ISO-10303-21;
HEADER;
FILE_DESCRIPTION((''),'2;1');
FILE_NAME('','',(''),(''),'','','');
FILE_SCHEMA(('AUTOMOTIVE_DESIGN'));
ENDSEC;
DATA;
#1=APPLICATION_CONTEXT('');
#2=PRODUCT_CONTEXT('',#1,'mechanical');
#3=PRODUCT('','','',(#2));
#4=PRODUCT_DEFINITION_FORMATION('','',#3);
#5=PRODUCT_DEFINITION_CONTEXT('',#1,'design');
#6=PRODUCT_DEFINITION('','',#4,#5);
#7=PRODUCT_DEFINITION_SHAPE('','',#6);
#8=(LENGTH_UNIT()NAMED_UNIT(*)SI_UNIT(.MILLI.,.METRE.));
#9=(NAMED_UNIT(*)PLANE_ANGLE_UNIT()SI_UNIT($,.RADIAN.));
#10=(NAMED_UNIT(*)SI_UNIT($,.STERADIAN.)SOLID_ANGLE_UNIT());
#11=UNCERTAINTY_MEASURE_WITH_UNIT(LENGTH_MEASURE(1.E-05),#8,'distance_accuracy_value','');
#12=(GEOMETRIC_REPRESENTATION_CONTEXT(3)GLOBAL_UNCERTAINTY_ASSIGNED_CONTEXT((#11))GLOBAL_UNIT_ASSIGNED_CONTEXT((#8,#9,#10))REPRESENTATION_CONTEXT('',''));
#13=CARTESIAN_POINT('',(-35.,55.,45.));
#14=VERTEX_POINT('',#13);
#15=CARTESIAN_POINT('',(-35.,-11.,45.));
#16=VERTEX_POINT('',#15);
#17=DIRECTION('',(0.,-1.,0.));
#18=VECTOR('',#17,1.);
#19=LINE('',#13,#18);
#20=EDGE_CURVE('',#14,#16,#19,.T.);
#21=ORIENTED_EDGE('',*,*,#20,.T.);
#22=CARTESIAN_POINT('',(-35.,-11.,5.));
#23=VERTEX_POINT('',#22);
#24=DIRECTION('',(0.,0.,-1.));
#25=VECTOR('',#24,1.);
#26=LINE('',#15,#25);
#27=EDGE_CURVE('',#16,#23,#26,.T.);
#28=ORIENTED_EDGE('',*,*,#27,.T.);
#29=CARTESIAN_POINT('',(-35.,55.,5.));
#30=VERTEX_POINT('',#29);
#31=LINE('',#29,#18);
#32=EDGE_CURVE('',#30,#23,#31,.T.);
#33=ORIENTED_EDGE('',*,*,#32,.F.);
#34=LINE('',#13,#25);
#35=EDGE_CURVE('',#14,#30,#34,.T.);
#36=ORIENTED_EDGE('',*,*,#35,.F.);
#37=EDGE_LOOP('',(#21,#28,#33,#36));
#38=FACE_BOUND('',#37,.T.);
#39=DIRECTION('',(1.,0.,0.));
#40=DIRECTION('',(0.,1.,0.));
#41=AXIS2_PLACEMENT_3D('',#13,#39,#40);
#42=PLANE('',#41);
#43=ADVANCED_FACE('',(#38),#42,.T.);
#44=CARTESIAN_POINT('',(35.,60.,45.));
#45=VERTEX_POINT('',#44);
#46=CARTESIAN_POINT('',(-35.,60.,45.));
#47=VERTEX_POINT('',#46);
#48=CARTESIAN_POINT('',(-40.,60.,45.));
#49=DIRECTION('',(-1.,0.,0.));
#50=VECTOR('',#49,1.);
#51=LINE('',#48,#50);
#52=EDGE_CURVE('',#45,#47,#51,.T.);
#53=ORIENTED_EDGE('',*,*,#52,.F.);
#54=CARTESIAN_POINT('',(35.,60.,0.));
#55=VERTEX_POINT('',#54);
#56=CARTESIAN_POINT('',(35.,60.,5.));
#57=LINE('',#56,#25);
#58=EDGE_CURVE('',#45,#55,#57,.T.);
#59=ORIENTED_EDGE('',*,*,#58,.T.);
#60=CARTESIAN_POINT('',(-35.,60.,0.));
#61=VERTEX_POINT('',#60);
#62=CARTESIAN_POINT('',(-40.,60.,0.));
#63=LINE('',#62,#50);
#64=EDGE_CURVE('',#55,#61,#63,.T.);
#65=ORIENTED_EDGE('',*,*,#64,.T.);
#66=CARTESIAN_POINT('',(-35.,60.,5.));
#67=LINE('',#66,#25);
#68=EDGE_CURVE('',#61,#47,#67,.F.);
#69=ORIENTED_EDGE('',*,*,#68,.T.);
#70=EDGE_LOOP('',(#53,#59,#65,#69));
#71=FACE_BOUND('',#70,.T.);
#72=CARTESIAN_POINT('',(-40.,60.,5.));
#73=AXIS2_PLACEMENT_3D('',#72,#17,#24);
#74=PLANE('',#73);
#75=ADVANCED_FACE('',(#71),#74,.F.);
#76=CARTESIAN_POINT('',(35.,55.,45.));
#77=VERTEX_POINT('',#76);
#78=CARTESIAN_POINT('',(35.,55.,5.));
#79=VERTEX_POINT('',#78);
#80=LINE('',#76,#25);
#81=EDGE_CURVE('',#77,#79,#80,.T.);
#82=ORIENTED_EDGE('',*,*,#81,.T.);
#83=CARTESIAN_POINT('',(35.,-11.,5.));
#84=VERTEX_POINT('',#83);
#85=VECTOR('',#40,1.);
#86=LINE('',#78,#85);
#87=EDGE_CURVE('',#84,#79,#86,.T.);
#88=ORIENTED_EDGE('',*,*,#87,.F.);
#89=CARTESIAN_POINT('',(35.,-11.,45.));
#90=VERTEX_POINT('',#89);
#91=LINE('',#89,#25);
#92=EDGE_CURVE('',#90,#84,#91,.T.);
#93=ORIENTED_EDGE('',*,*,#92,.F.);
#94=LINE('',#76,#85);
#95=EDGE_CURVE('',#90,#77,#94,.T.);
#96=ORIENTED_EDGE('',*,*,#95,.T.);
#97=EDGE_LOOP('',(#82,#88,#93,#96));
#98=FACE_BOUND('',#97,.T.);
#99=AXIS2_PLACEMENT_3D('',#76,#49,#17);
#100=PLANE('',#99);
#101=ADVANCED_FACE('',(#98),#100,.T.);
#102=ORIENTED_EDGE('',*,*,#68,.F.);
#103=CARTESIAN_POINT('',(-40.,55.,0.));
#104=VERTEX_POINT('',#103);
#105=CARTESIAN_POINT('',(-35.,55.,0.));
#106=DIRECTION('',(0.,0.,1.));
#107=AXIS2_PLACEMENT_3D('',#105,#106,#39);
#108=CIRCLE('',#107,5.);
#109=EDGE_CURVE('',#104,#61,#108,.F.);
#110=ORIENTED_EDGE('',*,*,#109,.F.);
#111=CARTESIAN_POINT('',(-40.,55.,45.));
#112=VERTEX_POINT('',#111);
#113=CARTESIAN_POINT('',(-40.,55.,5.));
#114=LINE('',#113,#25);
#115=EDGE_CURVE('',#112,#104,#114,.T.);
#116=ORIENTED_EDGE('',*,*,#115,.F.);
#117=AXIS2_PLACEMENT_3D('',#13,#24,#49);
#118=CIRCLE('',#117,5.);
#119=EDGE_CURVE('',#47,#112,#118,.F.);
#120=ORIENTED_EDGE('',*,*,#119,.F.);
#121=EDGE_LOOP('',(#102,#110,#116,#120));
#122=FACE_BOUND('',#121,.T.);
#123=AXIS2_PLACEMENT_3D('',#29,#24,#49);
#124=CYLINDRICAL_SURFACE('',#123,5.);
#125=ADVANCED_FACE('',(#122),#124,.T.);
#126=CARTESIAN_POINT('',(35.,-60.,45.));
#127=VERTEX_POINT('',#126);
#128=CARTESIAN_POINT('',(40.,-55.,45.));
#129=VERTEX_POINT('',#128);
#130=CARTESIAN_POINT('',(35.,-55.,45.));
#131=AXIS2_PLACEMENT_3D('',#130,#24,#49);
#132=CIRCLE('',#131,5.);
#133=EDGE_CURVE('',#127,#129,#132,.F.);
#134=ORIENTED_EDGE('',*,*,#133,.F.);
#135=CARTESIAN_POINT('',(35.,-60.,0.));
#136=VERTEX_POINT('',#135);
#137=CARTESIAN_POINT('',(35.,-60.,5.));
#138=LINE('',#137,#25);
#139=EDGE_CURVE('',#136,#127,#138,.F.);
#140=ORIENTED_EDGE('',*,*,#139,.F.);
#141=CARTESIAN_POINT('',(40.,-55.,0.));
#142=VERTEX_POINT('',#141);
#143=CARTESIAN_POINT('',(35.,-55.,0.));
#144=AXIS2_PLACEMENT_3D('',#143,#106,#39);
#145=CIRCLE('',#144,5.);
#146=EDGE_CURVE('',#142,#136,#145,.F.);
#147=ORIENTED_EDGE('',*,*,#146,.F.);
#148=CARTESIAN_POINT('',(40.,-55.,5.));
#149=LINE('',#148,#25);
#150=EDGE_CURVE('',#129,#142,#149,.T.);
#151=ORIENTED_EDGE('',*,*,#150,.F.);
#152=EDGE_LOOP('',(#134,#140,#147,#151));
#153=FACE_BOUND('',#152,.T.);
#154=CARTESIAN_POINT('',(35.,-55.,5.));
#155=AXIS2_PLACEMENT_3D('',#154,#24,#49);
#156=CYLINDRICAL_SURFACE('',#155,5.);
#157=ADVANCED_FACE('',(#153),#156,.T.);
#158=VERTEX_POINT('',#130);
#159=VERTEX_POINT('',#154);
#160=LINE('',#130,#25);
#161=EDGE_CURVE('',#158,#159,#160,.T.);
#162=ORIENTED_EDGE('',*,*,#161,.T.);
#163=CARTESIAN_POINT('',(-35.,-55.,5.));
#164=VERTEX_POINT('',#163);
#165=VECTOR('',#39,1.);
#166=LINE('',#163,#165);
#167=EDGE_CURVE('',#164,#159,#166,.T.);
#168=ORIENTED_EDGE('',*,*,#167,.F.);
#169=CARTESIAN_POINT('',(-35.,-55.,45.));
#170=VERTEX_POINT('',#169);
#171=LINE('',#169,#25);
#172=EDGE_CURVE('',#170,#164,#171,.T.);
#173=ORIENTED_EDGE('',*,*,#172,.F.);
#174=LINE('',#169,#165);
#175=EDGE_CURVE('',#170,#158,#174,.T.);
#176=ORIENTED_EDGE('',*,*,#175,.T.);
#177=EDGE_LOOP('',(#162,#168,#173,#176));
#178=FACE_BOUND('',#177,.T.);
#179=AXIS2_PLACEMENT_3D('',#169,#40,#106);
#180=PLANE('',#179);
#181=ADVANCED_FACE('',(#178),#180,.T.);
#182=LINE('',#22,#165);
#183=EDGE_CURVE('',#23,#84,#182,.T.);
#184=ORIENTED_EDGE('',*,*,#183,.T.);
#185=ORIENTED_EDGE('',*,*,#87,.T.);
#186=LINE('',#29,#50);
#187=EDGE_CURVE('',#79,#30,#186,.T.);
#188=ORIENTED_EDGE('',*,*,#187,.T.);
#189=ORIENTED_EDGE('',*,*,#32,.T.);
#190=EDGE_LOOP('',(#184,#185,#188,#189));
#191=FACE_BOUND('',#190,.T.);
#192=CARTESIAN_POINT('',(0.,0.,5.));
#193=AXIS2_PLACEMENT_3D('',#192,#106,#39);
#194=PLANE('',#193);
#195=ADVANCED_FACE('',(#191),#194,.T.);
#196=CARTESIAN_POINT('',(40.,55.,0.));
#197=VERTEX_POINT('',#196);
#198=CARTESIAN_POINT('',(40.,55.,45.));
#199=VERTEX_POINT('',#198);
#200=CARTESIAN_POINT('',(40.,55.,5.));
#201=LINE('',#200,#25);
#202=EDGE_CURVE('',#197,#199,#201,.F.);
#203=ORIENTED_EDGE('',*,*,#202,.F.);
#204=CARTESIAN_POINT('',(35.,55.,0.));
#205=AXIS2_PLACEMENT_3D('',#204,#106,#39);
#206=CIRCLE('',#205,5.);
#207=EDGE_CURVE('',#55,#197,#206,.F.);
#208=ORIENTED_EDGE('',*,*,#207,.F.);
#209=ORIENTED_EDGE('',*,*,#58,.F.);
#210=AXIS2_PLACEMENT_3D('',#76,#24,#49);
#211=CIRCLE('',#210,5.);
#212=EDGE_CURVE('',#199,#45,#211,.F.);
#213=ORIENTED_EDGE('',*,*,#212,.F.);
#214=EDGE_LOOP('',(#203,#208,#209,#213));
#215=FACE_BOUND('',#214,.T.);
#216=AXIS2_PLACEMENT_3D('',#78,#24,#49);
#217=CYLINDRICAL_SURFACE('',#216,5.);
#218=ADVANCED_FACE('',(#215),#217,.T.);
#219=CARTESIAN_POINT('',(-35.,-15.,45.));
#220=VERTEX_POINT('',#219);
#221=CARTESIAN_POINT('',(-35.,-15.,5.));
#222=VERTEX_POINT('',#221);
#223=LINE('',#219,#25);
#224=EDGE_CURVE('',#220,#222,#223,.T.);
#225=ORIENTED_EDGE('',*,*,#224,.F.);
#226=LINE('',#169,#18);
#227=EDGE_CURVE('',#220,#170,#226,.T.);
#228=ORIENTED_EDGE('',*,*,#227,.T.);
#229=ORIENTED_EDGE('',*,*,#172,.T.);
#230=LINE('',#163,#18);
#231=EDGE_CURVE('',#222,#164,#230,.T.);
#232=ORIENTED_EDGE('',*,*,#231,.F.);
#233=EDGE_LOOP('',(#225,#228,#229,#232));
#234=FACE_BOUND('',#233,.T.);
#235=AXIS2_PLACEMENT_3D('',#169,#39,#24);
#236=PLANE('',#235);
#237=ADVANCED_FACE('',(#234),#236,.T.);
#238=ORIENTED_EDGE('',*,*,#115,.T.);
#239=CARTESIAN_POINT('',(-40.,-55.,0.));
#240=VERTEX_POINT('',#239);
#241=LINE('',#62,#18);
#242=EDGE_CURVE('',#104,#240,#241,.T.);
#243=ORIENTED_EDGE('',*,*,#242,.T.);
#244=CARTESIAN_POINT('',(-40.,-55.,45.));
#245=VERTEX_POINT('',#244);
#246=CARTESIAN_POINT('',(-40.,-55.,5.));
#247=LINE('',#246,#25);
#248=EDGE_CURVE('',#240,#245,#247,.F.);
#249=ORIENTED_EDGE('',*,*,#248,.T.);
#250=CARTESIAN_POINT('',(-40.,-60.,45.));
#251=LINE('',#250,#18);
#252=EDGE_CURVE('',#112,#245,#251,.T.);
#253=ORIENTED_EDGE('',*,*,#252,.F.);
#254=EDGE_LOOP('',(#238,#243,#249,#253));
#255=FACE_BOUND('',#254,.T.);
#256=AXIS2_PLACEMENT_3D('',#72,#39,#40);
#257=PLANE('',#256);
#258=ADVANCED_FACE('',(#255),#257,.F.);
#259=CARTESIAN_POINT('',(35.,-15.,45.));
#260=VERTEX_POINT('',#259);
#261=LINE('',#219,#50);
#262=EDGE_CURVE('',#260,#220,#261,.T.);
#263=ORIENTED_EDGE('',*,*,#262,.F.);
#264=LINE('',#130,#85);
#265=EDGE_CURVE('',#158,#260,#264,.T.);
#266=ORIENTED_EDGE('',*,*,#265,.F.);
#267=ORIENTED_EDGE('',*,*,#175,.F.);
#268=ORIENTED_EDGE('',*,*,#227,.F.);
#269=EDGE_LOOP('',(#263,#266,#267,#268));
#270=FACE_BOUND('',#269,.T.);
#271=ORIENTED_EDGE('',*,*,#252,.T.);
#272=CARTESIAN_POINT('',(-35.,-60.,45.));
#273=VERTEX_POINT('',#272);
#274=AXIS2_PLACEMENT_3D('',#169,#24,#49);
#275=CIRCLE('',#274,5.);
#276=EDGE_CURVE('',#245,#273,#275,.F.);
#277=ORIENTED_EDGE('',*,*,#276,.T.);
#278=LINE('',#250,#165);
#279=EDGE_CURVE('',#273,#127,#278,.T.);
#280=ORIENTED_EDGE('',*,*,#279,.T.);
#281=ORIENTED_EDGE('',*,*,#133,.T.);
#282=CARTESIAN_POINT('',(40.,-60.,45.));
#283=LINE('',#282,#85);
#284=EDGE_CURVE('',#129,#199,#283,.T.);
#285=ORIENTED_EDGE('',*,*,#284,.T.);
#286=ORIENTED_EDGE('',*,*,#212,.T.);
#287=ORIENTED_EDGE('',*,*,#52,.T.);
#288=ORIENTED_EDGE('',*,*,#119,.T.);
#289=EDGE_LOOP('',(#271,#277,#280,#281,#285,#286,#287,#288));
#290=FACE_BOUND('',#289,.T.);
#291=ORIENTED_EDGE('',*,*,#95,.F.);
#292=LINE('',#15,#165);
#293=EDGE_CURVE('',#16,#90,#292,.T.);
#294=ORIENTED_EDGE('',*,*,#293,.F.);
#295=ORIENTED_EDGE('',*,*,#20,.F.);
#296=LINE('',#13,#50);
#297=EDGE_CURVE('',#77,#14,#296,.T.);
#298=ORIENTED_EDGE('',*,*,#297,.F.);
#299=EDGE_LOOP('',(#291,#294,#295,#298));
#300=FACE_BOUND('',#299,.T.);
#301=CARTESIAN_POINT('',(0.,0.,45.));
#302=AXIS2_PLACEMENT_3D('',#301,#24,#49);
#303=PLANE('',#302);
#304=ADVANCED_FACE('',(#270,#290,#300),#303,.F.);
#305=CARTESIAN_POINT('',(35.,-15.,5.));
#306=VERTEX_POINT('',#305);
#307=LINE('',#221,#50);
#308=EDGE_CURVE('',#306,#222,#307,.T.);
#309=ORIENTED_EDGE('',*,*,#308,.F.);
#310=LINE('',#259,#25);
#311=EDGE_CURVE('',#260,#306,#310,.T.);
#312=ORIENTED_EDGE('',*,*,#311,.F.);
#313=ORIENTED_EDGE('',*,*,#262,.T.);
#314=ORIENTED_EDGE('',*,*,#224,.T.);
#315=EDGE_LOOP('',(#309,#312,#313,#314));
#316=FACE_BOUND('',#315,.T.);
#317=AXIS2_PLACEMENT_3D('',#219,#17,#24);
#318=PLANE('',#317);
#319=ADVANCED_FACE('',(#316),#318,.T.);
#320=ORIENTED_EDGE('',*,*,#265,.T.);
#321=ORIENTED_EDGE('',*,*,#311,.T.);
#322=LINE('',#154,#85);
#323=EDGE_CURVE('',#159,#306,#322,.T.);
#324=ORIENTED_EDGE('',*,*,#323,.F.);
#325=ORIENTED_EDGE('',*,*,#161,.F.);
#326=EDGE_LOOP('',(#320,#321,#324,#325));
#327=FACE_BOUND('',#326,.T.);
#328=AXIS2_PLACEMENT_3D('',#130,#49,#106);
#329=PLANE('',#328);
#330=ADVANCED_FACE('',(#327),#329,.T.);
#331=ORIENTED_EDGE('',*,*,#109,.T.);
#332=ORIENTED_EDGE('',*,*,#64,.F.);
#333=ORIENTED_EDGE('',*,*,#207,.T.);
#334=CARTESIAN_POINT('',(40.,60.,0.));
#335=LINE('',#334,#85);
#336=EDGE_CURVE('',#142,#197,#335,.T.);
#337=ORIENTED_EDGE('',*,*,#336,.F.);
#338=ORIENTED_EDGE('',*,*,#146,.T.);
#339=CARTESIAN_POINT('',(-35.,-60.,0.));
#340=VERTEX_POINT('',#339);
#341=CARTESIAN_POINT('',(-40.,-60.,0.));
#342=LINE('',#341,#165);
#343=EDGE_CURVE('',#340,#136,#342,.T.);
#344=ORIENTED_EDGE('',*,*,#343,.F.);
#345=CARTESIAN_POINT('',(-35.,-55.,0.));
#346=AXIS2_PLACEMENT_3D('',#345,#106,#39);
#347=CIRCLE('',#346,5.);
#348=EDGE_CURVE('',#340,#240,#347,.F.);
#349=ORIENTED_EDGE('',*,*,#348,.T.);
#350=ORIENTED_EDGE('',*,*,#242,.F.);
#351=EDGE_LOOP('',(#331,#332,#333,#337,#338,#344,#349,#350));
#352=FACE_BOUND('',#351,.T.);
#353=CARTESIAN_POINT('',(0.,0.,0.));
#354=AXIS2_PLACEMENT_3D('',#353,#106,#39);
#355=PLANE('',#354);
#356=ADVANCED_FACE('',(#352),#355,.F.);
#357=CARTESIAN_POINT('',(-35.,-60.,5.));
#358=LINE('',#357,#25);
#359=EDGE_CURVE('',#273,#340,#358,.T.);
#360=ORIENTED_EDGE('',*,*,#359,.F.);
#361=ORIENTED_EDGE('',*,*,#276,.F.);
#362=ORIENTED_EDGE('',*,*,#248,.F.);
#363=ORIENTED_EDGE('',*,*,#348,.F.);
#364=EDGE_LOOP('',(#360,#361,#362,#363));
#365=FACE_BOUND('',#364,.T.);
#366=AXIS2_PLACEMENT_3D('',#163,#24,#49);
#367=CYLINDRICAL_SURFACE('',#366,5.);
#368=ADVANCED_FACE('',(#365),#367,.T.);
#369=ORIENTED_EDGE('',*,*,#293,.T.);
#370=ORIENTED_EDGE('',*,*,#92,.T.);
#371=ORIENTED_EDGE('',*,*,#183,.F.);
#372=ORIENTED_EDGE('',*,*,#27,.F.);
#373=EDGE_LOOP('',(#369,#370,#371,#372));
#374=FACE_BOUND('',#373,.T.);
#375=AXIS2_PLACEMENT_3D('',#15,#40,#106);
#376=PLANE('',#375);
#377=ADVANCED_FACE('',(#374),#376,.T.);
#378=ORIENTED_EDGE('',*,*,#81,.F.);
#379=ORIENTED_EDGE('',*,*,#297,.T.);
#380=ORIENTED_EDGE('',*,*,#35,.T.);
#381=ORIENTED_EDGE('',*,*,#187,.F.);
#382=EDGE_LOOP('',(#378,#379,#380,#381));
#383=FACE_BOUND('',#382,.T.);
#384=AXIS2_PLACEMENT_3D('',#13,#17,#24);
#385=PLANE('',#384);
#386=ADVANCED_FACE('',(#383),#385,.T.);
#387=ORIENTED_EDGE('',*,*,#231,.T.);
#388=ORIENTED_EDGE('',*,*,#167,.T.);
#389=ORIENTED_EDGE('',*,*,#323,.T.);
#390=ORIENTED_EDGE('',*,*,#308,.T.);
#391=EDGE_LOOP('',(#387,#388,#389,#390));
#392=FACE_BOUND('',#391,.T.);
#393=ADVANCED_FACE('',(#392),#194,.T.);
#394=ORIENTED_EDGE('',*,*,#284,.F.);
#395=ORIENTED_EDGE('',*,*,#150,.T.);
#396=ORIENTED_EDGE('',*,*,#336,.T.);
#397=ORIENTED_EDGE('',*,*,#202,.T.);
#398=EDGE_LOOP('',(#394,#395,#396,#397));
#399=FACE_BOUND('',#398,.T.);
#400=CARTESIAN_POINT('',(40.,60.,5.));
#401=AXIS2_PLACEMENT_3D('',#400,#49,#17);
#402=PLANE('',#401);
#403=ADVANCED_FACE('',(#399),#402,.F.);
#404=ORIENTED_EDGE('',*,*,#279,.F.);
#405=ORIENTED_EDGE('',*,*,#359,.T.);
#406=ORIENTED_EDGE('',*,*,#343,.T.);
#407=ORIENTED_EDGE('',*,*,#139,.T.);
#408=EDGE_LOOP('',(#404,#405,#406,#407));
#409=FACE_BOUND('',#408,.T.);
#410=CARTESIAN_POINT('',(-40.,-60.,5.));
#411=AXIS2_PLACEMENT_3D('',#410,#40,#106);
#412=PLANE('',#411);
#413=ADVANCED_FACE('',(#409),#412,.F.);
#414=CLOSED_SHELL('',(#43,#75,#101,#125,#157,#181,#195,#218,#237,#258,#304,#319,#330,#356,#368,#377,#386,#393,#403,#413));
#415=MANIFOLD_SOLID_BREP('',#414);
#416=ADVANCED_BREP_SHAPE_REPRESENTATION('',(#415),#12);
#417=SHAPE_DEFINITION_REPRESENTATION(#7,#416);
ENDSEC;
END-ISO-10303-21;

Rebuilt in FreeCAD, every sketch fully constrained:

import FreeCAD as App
import Part
import Sketcher
Q = App.Units.Quantity


def edges_at(feature, points):
    """Names of the edges that pass closest to the given points."""
    edges = feature.Shape.Edges
    near = lambda p: min(range(len(edges)), key=lambda i: edges[i].distToShape(Part.Vertex(*p))[0])
    return sorted({f"Edge{near(p) + 1}" for p in points})

doc = App.newDocument("Part")
params = doc.addObject("Spreadsheet::Sheet", "Params")
for row, (alias, value) in enumerate([
    ("sketch1_width", "80 mm"),
    ("sketch1_height", "120 mm"),
    ("pad1_length", "5 mm"),
    ("sketch2_width", "80 mm"),
    ("sketch2_width2", "70 mm"),
    ("sketch2_height", "120 mm"),
    ("sketch2_height2", "40 mm"),
    ("sketch2_height3", "66 mm"),
    ("pad2_length", "40 mm"),
    ("fillet_radius", "5 mm"),
], start=1):
    params.set(f"A{row}", alias)
    params.set(f"B{row}", "=" + value)
    params.setAlias(f"B{row}", alias)

body = doc.addObject("PartDesign::Body", "Body")

# Sketch on XY plane
sketch1 = body.newObject("Sketcher::SketchObject", "Sketch")
sketch1.AttachmentSupport = (doc.getObject("XY_Plane"), [""])
sketch1.MapMode = "FlatFace"
sketch1.addGeometry(Part.LineSegment(App.Vector(-40, 60, 0), App.Vector(-40, -60, 0)), False)
sketch1.addGeometry(Part.LineSegment(App.Vector(-40, -60, 0), App.Vector(40, -60, 0)), False)
sketch1.addGeometry(Part.LineSegment(App.Vector(40, -60, 0), App.Vector(40, 60, 0)), False)
sketch1.addGeometry(Part.LineSegment(App.Vector(40, 60, 0), App.Vector(-40, 60, 0)), False)
sketch1.addConstraint(Sketcher.Constraint("Coincident", 0, 2, 1, 1))
sketch1.addConstraint(Sketcher.Constraint("Coincident", 1, 2, 2, 1))
sketch1.addConstraint(Sketcher.Constraint("Coincident", 2, 2, 3, 1))
sketch1.addConstraint(Sketcher.Constraint("Coincident", 3, 2, 0, 1))
sketch1.addConstraint(Sketcher.Constraint("Vertical", 0))
sketch1.addConstraint(Sketcher.Constraint("Horizontal", 1))
sketch1.addConstraint(Sketcher.Constraint("Vertical", 2))
sketch1.addConstraint(Sketcher.Constraint("Horizontal", 3))
sketch1.addConstraint(Sketcher.Constraint("Symmetric", 0, 2, 2, 2, -1, 1))
sketch1.addConstraint(Sketcher.Constraint("DistanceX", 1, 1, 1, 2, Q("80 mm")))
sketch1.addConstraint(Sketcher.Constraint("DistanceY", 0, 2, 0, 1, Q("120 mm")))
sketch1.setExpression("Constraints[9]", "Params.sketch1_width")
sketch1.setExpression("Constraints[10]", "Params.sketch1_height")
pad1 = body.newObject("PartDesign::Pad", "Pad")
pad1.Profile = sketch1
pad1.setExpression("Length", "Params.pad1_length")

# Sketch on XY plane
sketch2 = body.newObject("Sketcher::SketchObject", "Sketch001")
sketch2.AttachmentSupport = (doc.getObject("XY_Plane"), [""])
sketch2.MapMode = "FlatFace"
sketch2.AttachmentOffset = App.Placement(App.Vector(0, 0, 5), App.Rotation())
sketch2.addGeometry(Part.LineSegment(App.Vector(-40, 60, 0), App.Vector(-40, -60, 0)), False)
sketch2.addGeometry(Part.LineSegment(App.Vector(-40, -60, 0), App.Vector(40, -60, 0)), False)
sketch2.addGeometry(Part.LineSegment(App.Vector(40, -60, 0), App.Vector(40, 60, 0)), False)
sketch2.addGeometry(Part.LineSegment(App.Vector(40, 60, 0), App.Vector(-40, 60, 0)), False)
sketch2.addGeometry(Part.LineSegment(App.Vector(35, -55, 0), App.Vector(-35, -55, 0)), False)
sketch2.addGeometry(Part.LineSegment(App.Vector(-35, -55, 0), App.Vector(-35, -15, 0)), False)
sketch2.addGeometry(Part.LineSegment(App.Vector(-35, -15, 0), App.Vector(35, -15, 0)), False)
sketch2.addGeometry(Part.LineSegment(App.Vector(35, -15, 0), App.Vector(35, -55, 0)), False)
sketch2.addGeometry(Part.LineSegment(App.Vector(35, -11, 0), App.Vector(-35, -11, 0)), False)
sketch2.addGeometry(Part.LineSegment(App.Vector(-35, -11, 0), App.Vector(-35, 55, 0)), False)
sketch2.addGeometry(Part.LineSegment(App.Vector(-35, 55, 0), App.Vector(35, 55, 0)), False)
sketch2.addGeometry(Part.LineSegment(App.Vector(35, 55, 0), App.Vector(35, -11, 0)), False)
sketch2.addConstraint(Sketcher.Constraint("Coincident", 0, 2, 1, 1))
sketch2.addConstraint(Sketcher.Constraint("Coincident", 1, 2, 2, 1))
sketch2.addConstraint(Sketcher.Constraint("Coincident", 2, 2, 3, 1))
sketch2.addConstraint(Sketcher.Constraint("Coincident", 3, 2, 0, 1))
sketch2.addConstraint(Sketcher.Constraint("Coincident", 4, 2, 5, 1))
sketch2.addConstraint(Sketcher.Constraint("Coincident", 5, 2, 6, 1))
sketch2.addConstraint(Sketcher.Constraint("Coincident", 6, 2, 7, 1))
sketch2.addConstraint(Sketcher.Constraint("Coincident", 7, 2, 4, 1))
sketch2.addConstraint(Sketcher.Constraint("Coincident", 8, 2, 9, 1))
sketch2.addConstraint(Sketcher.Constraint("Coincident", 9, 2, 10, 1))
sketch2.addConstraint(Sketcher.Constraint("Coincident", 10, 2, 11, 1))
sketch2.addConstraint(Sketcher.Constraint("Coincident", 11, 2, 8, 1))
sketch2.addConstraint(Sketcher.Constraint("Vertical", 0))
sketch2.addConstraint(Sketcher.Constraint("Horizontal", 1))
sketch2.addConstraint(Sketcher.Constraint("Vertical", 2))
sketch2.addConstraint(Sketcher.Constraint("Horizontal", 3))
sketch2.addConstraint(Sketcher.Constraint("Horizontal", 4))
sketch2.addConstraint(Sketcher.Constraint("Vertical", 5))
sketch2.addConstraint(Sketcher.Constraint("Horizontal", 6))
sketch2.addConstraint(Sketcher.Constraint("Vertical", 7))
sketch2.addConstraint(Sketcher.Constraint("Horizontal", 8))
sketch2.addConstraint(Sketcher.Constraint("Vertical", 9))
sketch2.addConstraint(Sketcher.Constraint("Horizontal", 10))
sketch2.addConstraint(Sketcher.Constraint("Vertical", 11))
sketch2.addConstraint(Sketcher.Constraint("Symmetric", 0, 2, 2, 2, -1, 1))
sketch2.addConstraint(Sketcher.Constraint("Symmetric", 7, 2, 9, 2, -1, 1))
sketch2.addConstraint(Sketcher.Constraint("Vertical", 5, 2, 8, 2))
sketch2.addConstraint(Sketcher.Constraint("Vertical", 7, 2, 10, 2))
sketch2.addConstraint(Sketcher.Constraint("DistanceX", 1, 1, 1, 2, Q("80 mm")))
sketch2.addConstraint(Sketcher.Constraint("DistanceX", 4, 2, 4, 1, Q("70 mm")))
sketch2.addConstraint(Sketcher.Constraint("DistanceY", 0, 2, 0, 1, Q("120 mm")))
sketch2.addConstraint(Sketcher.Constraint("DistanceY", 5, 1, 5, 2, Q("40 mm")))
sketch2.addConstraint(Sketcher.Constraint("DistanceY", 9, 1, 9, 2, Q("66 mm")))
sketch2.addConstraint(Sketcher.Constraint("DistanceY", 4, 2, -1, 1, Q("55 mm")))
sketch2.setExpression("Constraints[28]", "Params.sketch2_width")
sketch2.setExpression("Constraints[29]", "Params.sketch2_width2")
sketch2.setExpression("Constraints[30]", "Params.sketch2_height")
sketch2.setExpression("Constraints[31]", "Params.sketch2_height2")
sketch2.setExpression("Constraints[32]", "Params.sketch2_height3")
pad2 = body.newObject("PartDesign::Pad", "Pad001")
pad2.Profile = sketch2
pad2.setExpression("Length", "Params.pad2_length")
doc.recompute()

fillet = body.newObject("PartDesign::Fillet", "Fillet")
fillet.Base = (pad2, edges_at(pad2, [
    (40, -60, 22.5),
    (-40, -60, 22.5),
    (-40, 60, 22.5),
    (40, 60, 22.5),
]))
fillet.setExpression("Radius", "Params.fillet_radius")

doc.recompute()
